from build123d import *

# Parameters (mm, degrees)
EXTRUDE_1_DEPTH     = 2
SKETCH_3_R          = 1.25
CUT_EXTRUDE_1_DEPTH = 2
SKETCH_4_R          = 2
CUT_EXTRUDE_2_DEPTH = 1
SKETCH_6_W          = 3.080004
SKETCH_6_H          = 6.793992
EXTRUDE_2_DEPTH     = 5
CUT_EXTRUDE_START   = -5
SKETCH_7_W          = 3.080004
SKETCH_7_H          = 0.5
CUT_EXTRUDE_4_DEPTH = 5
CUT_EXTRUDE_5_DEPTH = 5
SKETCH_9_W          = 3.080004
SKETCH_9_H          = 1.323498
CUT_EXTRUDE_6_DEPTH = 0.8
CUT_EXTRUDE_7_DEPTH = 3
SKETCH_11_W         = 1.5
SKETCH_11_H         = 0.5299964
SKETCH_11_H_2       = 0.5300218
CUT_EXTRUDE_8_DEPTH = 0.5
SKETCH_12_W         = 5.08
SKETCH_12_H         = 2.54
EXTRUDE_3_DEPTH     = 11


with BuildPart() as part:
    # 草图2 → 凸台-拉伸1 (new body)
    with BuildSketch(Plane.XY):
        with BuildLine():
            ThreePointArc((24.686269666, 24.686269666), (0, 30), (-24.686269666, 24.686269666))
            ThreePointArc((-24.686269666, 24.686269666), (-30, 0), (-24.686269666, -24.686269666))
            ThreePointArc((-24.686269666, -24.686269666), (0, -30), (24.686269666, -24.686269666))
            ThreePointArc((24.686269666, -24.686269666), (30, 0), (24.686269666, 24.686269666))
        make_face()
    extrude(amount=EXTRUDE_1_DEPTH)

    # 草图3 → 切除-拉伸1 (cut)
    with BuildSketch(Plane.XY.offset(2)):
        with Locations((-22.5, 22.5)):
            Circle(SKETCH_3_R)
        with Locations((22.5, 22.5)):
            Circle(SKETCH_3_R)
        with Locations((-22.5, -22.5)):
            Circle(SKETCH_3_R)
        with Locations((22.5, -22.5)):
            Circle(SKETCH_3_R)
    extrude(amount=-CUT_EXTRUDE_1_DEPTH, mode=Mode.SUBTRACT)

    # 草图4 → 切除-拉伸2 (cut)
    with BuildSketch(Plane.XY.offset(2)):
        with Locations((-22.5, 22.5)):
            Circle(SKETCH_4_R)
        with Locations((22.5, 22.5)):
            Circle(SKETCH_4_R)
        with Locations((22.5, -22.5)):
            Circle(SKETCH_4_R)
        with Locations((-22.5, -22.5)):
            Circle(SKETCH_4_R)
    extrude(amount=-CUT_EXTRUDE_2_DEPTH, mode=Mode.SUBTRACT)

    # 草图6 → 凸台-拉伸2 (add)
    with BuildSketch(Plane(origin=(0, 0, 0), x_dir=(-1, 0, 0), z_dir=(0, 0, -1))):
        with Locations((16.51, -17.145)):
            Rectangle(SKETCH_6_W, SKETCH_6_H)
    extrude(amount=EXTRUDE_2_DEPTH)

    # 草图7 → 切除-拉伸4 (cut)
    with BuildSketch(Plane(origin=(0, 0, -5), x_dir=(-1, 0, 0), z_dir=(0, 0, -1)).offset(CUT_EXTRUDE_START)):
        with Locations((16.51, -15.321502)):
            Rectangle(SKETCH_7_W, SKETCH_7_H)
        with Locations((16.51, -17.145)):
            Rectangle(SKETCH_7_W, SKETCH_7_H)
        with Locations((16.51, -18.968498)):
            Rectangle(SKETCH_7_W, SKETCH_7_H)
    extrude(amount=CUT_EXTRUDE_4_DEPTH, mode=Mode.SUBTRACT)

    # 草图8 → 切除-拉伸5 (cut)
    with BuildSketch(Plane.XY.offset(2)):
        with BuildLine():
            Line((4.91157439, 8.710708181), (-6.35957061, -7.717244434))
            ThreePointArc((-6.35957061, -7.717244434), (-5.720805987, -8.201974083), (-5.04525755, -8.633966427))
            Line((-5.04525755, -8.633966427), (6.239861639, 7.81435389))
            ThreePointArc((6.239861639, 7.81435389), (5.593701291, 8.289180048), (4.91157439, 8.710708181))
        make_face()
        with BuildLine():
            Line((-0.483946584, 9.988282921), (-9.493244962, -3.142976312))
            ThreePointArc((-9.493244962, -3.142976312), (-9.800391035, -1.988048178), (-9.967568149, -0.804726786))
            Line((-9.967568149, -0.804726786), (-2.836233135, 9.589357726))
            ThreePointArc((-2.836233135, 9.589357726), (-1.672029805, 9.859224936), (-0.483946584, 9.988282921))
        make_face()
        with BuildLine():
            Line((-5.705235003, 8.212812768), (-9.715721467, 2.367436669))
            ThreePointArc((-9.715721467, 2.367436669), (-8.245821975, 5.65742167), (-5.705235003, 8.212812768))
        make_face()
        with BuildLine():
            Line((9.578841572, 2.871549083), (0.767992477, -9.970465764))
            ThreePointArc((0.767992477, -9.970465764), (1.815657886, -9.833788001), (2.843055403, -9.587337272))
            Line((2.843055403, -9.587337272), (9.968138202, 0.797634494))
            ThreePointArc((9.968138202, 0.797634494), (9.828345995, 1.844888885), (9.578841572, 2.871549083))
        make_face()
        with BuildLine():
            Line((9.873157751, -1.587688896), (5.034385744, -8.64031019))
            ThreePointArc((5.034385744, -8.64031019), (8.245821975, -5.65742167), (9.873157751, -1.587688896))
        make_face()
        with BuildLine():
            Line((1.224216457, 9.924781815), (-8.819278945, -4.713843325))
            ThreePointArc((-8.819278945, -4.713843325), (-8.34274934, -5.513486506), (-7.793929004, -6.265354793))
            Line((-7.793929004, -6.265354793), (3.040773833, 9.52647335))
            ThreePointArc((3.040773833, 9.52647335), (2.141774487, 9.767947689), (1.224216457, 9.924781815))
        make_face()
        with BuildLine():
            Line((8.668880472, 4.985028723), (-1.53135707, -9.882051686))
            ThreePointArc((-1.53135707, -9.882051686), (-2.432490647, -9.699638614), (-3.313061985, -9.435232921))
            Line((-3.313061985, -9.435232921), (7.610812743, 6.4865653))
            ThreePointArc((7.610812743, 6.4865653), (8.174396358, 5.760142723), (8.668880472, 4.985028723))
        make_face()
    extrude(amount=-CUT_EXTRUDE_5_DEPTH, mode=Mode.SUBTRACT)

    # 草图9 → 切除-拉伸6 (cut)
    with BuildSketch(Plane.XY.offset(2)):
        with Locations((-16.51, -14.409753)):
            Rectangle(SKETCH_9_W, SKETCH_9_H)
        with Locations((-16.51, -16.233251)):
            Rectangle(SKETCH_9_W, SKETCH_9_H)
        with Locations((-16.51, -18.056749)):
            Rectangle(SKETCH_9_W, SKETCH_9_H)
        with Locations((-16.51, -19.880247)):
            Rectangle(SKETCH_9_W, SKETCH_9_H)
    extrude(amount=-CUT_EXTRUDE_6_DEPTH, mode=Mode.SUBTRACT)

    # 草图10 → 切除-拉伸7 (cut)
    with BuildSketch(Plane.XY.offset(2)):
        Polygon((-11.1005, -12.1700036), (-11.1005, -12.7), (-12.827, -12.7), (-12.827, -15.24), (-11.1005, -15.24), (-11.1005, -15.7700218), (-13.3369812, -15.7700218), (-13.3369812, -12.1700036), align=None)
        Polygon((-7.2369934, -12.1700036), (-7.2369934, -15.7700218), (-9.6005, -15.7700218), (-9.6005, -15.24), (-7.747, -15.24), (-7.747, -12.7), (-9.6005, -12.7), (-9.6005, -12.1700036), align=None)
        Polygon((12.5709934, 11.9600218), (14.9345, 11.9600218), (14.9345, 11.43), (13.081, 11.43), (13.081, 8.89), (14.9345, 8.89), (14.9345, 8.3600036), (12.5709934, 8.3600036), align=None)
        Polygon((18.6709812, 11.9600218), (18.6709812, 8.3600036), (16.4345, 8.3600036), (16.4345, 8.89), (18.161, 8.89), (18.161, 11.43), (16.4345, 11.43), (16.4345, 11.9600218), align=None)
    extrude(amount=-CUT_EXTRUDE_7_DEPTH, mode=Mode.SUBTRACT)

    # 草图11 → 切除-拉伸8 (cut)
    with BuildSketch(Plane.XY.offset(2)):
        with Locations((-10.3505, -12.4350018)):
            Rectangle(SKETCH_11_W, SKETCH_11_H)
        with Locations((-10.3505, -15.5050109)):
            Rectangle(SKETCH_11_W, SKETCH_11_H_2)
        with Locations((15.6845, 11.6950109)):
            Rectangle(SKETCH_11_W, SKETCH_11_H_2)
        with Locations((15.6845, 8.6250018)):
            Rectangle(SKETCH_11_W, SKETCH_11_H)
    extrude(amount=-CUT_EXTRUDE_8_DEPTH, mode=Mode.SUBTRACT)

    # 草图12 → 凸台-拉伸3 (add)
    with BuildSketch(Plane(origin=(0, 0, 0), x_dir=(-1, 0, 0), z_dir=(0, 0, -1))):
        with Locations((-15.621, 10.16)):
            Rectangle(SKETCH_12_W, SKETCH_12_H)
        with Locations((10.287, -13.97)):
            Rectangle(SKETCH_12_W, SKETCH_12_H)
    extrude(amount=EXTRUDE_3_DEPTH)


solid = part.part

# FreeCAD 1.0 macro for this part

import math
import FreeCAD as App
import Part
import Sketcher
from FreeCAD import Vector
Q = App.Units.Quantity


def add_polygon(sketch, points):
    """Adds a closed chain of lines whose ends are joined by coincident constraints."""
    first, n = sketch.GeometryCount, len(points)
    for a, b in zip(points, points[1:] + points[:1]):
        sketch.addGeometry(Part.LineSegment(App.Vector(*a, 0), App.Vector(*b, 0)), False)
    for i in range(n):
        sketch.addConstraint(Sketcher.Constraint("Coincident", first + i, 2, first + (i + 1) % n, 1))

doc = App.newDocument("Part")
body = doc.addObject("PartDesign::Body", "Body")

# Sketch on XY plane
sketch1 = body.newObject("Sketcher::SketchObject", "Sketch")
sketch1.AttachmentSupport = (doc.getObject("XY_Plane"), [""])
sketch1.MapMode = "FlatFace"
sketch1.addGeometry(Part.ArcOfCircle(Part.Circle(Vector(0, -30, 0), Vector(0, 0, 1), 60), math.radians(66), math.radians(114)), False)
sketch1.addGeometry(Part.ArcOfCircle(Part.Circle(Vector(30, 0, 0), Vector(0, 0, 1), 60), math.radians(156), math.radians(204)), False)
sketch1.addGeometry(Part.ArcOfCircle(Part.Circle(Vector(0, 30, 0), Vector(0, 0, 1), 60), math.radians(-114), math.radians(-66)), False)
sketch1.addGeometry(Part.ArcOfCircle(Part.Circle(Vector(-30, 0, 0), Vector(0, 0, 1), 60), math.radians(-24), math.radians(24)), False)
sketch1.addConstraint(Sketcher.Constraint("Coincident", 0, 2, 1, 1))
sketch1.addConstraint(Sketcher.Constraint("Coincident", 1, 2, 2, 1))
sketch1.addConstraint(Sketcher.Constraint("Coincident", 2, 2, 3, 1))
sketch1.addConstraint(Sketcher.Constraint("Coincident", 3, 2, 0, 1))
sketch1.addConstraint(Sketcher.Constraint("Equal", 0, 1))
sketch1.addConstraint(Sketcher.Constraint("Equal", 1, 2))
sketch1.addConstraint(Sketcher.Constraint("Equal", 2, 3))
sketch1.addConstraint(Sketcher.Constraint("Symmetric", 0, 3, 2, 3, -1, 1))
sketch1.addConstraint(Sketcher.Constraint("Symmetric", 1, 3, 3, 3, -1, 1))
sketch1.addConstraint(Sketcher.Constraint("Symmetric", 1, 2, 2, 2, -2))
sketch1.addConstraint(Sketcher.Constraint("Radius", 0, Q("60 mm")))
sketch1.addConstraint(Sketcher.Constraint("DistanceY", 0, 3, -1, 1, Q("30 mm")))
sketch1.addConstraint(Sketcher.Constraint("DistanceX", -1, 1, 1, 3, Q("30 mm")))
pad1 = body.newObject("PartDesign::Pad", "Pad")
pad1.Profile = sketch1
pad1.Length = 2

# Sketch on XY plane
sketch2 = body.newObject("Sketcher::SketchObject", "Sketch001")
sketch2.AttachmentSupport = (doc.getObject("XY_Plane"), [""])
sketch2.MapMode = "FlatFace"
sketch2.AttachmentOffset = App.Placement(Vector(0, 0, 2), App.Rotation())
sketch2.addGeometry(Part.Circle(Vector(-22.5, 22.5, 0), Vector(0, 0, 1), 1.2), False)
sketch2.addGeometry(Part.Circle(Vector(22.5, 22.5, 0), Vector(0, 0, 1), 1.2), False)
sketch2.addGeometry(Part.Circle(Vector(-22.5, -22.5, 0), Vector(0, 0, 1), 1.2), False)
sketch2.addGeometry(Part.Circle(Vector(22.5, -22.5, 0), Vector(0, 0, 1), 1.2), False)
sketch2.addConstraint(Sketcher.Constraint("Equal", 0, 1))
sketch2.addConstraint(Sketcher.Constraint("Equal", 1, 2))
sketch2.addConstraint(Sketcher.Constraint("Equal", 2, 3))
sketch2.addConstraint(Sketcher.Constraint("Symmetric", 1, 3, 2, 3, -1, 1))
sketch2.addConstraint(Sketcher.Constraint("Symmetric", 0, 3, 3, 3, -1, 1))
sketch2.addConstraint(Sketcher.Constraint("Symmetric", 0, 3, 1, 3, -2))
sketch2.addConstraint(Sketcher.Constraint("Diameter", 0, Q("2.5 mm")))
sketch2.addConstraint(Sketcher.Constraint("DistanceX", 0, 3, 1, 3, Q("45 mm")))
sketch2.addConstraint(Sketcher.Constraint("DistanceY", 2, 3, 0, 3, Q("45 mm")))
pocket1 = body.newObject("PartDesign::Pocket", "Pocket")
pocket1.Profile = sketch2
pocket1.Length = 2

# Sketch on XY plane
sketch3 = body.newObject("Sketcher::SketchObject", "Sketch002")
sketch3.AttachmentSupport = (doc.getObject("XY_Plane"), [""])
sketch3.MapMode = "FlatFace"
sketch3.AttachmentOffset = App.Placement(Vector(0, 0, 2), App.Rotation())
sketch3.addGeometry(Part.Circle(Vector(-22.5, 22.5, 0), Vector(0, 0, 1), 2), False)
sketch3.addGeometry(Part.Circle(Vector(22.5, 22.5, 0), Vector(0, 0, 1), 2), False)
sketch3.addGeometry(Part.Circle(Vector(22.5, -22.5, 0), Vector(0, 0, 1), 2), False)
sketch3.addGeometry(Part.Circle(Vector(-22.5, -22.5, 0), Vector(0, 0, 1), 2), False)
sketch3.addConstraint(Sketcher.Constraint("Equal", 0, 1))
sketch3.addConstraint(Sketcher.Constraint("Equal", 1, 2))
sketch3.addConstraint(Sketcher.Constraint("Equal", 2, 3))
sketch3.addConstraint(Sketcher.Constraint("Symmetric", 0, 3, 2, 3, -1, 1))
sketch3.addConstraint(Sketcher.Constraint("Symmetric", 1, 3, 3, 3, -1, 1))
sketch3.addConstraint(Sketcher.Constraint("Symmetric", 0, 3, 1, 3, -2))
sketch3.addConstraint(Sketcher.Constraint("Diameter", 0, Q("4 mm")))
sketch3.addConstraint(Sketcher.Constraint("DistanceX", 0, 3, 1, 3, Q("45 mm")))
sketch3.addConstraint(Sketcher.Constraint("DistanceY", 2, 3, 1, 3, Q("45 mm")))
pocket2 = body.newObject("PartDesign::Pocket", "Pocket001")
pocket2.Profile = sketch3
pocket2.Length = 1

# Sketch on XY plane
sketch4 = body.newObject("Sketcher::SketchObject", "Sketch003")
sketch4.AttachmentSupport = (doc.getObject("XY_Plane"), [""])
sketch4.MapMode = "FlatFace"
add_polygon(sketch4, [(-15, -13.7), (-15, -20.5), (-18.1, -20.5), (-18.1, -13.7)])  # lines 0-3
sketch4.addConstraint(Sketcher.Constraint("Vertical", 0))
sketch4.addConstraint(Sketcher.Constraint("Horizontal", 1))
sketch4.addConstraint(Sketcher.Constraint("Vertical", 2))
sketch4.addConstraint(Sketcher.Constraint("Horizontal", 3))
sketch4.addConstraint(Sketcher.Constraint("DistanceX", 1, 2, -1, 1, Q("18.050002 mm")))
sketch4.addConstraint(Sketcher.Constraint("DistanceX", 1, 2, 1, 1, Q("3.080004 mm")))
sketch4.addConstraint(Sketcher.Constraint("DistanceY", 0, 2, 0, 1, Q("6.793992 mm")))
sketch4.addConstraint(Sketcher.Constraint("DistanceY", 0, 2, -1, 1, Q("20.541996 mm")))
pad2 = body.newObject("PartDesign::Pad", "Pad001")
pad2.Profile = sketch4
pad2.Length = 5
pad2.Reversed = True

# Sketch on XY plane
sketch5 = body.newObject("Sketcher::SketchObject", "Sketch004")
sketch5.AttachmentSupport = (doc.getObject("XY_Plane"), [""])
sketch5.MapMode = "FlatFace"
add_polygon(sketch5, [(-15, -15.1), (-15, -15.6), (-18.1, -15.6), (-18.1, -15.1)])  # lines 0-3
add_polygon(sketch5, [(-15, -16.9), (-15, -17.4), (-18.1, -17.4), (-18.1, -16.9)])  # lines 4-7
add_polygon(sketch5, [(-15, -18.7), (-15, -19.2), (-18.1, -19.2), (-18.1, -18.7)])  # lines 8-11
sketch5.addConstraint(Sketcher.Constraint("Vertical", 0))
sketch5.addConstraint(Sketcher.Constraint("Horizontal", 1))
sketch5.addConstraint(Sketcher.Constraint("Vertical", 2))
sketch5.addConstraint(Sketcher.Constraint("Horizontal", 3))
sketch5.addConstraint(Sketcher.Constraint("Vertical", 4))
sketch5.addConstraint(Sketcher.Constraint("Horizontal", 5))
sketch5.addConstraint(Sketcher.Constraint("Vertical", 6))
sketch5.addConstraint(Sketcher.Constraint("Horizontal", 7))
sketch5.addConstraint(Sketcher.Constraint("Vertical", 8))
sketch5.addConstraint(Sketcher.Constraint("Horizontal", 9))
sketch5.addConstraint(Sketcher.Constraint("Vertical", 10))
sketch5.addConstraint(Sketcher.Constraint("Horizontal", 11))
sketch5.addConstraint(Sketcher.Constraint("Vertical", 3, 2, 4, 2))
sketch5.addConstraint(Sketcher.Constraint("Vertical", 2, 2, 5, 2))
sketch5.addConstraint(Sketcher.Constraint("Vertical", 7, 2, 8, 2))
sketch5.addConstraint(Sketcher.Constraint("Vertical", 6, 2, 9, 2))
sketch5.addConstraint(Sketcher.Constraint("Equal", 2, 4))
sketch5.addConstraint(Sketcher.Constraint("Equal", 6, 8))
sketch5.addConstraint(Sketcher.Constraint("DistanceY", 0, 2, 0, 1, Q("0.5 mm")))
sketch5.addConstraint(Sketcher.Constraint("DistanceX", 1, 2, -1, 1, Q("18.050002 mm")))
sketch5.addConstraint(Sketcher.Constraint("DistanceY", 4, 2, -1, 1, Q("17.395 mm")))
sketch5.addConstraint(Sketcher.Constraint("DistanceY", 8, 2, -1, 1, Q("19.218498 mm")))
sketch5.addConstraint(Sketcher.Constraint("DistanceX", 1, 2, 1, 1, Q("3.080004 mm")))
sketch5.addConstraint(Sketcher.Constraint("DistanceY", 0, 2, -1, 1, Q("15.571502 mm")))
pocket3 = body.newObject("PartDesign::Pocket", "Pocket002")
pocket3.Profile = sketch5
pocket3.Length = 5

# Sketch on XY plane
sketch6 = body.newObject("Sketcher::SketchObject", "Sketch005")
sketch6.AttachmentSupport = (doc.getObject("XY_Plane"), [""])
sketch6.MapMode = "FlatFace"
sketch6.AttachmentOffset = App.Placement(Vector(0, 0, 2), App.Rotation())
sketch6.addGeometry(Part.LineSegment(Vector(4.911574, 8.710708, 0), Vector(-6.359571, -7.717244, 0)), False)
sketch6.addGeometry(Part.ArcOfCircle(Part.Circle(Vector(0, 0, 0), Vector(0, 0, 1), 10), math.radians(-129.491004), math.radians(-120.299876)), False)
sketch6.addGeometry(Part.LineSegment(Vector(-5.045258, -8.633966, 0), Vector(6.239862, 7.814354, 0)), False)
sketch6.addGeometry(Part.ArcOfCircle(Part.Circle(Vector(0, 0, 0), Vector(0, 0, 1), 10), math.radians(51.392187), math.radians(60.583315)), False)
sketch6.addGeometry(Part.LineSegment(Vector(-9.493245, -3.142976, 0), Vector(-0.483947, 9.988283, 0)), False)
sketch6.addGeometry(Part.ArcOfCircle(Part.Circle(Vector(0, 0, 0), Vector(0, 0, 1), 10), math.radians(92.773893), math.radians(106.476575)), False)
sketch6.addGeometry(Part.LineSegment(Vector(-2.836233, 9.589358, 0), Vector(-9.967568, -0.804727, 0)), False)
sketch6.addGeometry(Part.ArcOfCircle(Part.Circle(Vector(0, 0, 0), Vector(0, 0, 1), 10), math.radians(-175.384264), math.radians(-161.681582)), False)
sketch6.addGeometry(Part.LineSegment(Vector(-9.715721, 2.367437, 0), Vector(-5.705235, 8.212813, 0)), False)
sketch6.addGeometry(Part.ArcOfCircle(Part.Circle(Vector(0, 0, 0), Vector(0, 0, 1), 10), math.radians(124.786739), math.radians(166.305572)), False)
sketch6.addGeometry(Part.LineSegment(Vector(9.578842, 2.871549, 0), Vector(0.767992, -9.970466, 0)), False)
sketch6.addGeometry(Part.ArcOfCircle(Part.Circle(Vector(0, 0, 0), Vector(0, 0, 1), 10), math.radians(-85.59539), math.radians(-73.482658)), False)
sketch6.addGeometry(Part.LineSegment(Vector(2.843055, -9.587337, 0), Vector(9.968138, 0.797634, 0)), False)
sketch6.addGeometry(Part.ArcOfCircle(Part.Circle(Vector(0, 0, 0), Vector(0, 0, 1), 10), math.radians(4.574969), math.radians(16.687701)), False)
sketch6.addGeometry(Part.LineSegment(Vector(9.873158, -1.587689, 0), Vector(5.034386, -8.64031, 0)), False)
sketch6.addGeometry(Part.ArcOfCircle(Part.Circle(Vector(0, 0, 0), Vector(0, 0, 1), 10), math.radians(-59.772244), math.radians(-9.135445)), False)
sketch6.addGeometry(Part.LineSegment(Vector(1.224216, 9.924782, 0), Vector(-8.819279, -4.713843, 0)), False)
sketch6.addGeometry(Part.ArcOfCircle(Part.Circle(Vector(0, 0, 0), Vector(0, 0, 1), 10), math.radians(-151.875806), math.radians(-141.205023)), False)
sketch6.addGeometry(Part.LineSegment(Vector(-7.793929, -6.265355, 0), Vector(3.040774, 9.526473, 0)), False)
sketch6.addGeometry(Part.ArcOfCircle(Part.Circle(Vector(0, 0, 0), Vector(0, 0, 1), 10), math.radians(72.297334), math.radians(82.968117)), False)
sketch6.addGeometry(Part.LineSegment(Vector(-1.531357, -9.882052, 0), Vector(8.66888, 4.985029, 0)), False)
sketch6.addGeometry(Part.ArcOfCircle(Part.Circle(Vector(0, 0, 0), Vector(0, 0, 1), 10), math.radians(29.901), math.radians(40.440386)), False)
sketch6.addGeometry(Part.LineSegment(Vector(7.610813, 6.486565, 0), Vector(-3.313062, -9.435233, 0)), False)
sketch6.addGeometry(Part.ArcOfCircle(Part.Circle(Vector(0, 0, 0), Vector(0, 0, 1), 10), math.radians(-109.348076), math.radians(-98.808689)), False)
sketch6.addConstraint(Sketcher.Constraint("Coincident", 0, 2, 1, 1))
sketch6.addConstraint(Sketcher.Constraint("Coincident", 1, 2, 2, 1))
sketch6.addConstraint(Sketcher.Constraint("Coincident", 2, 2, 3, 1))
sketch6.addConstraint(Sketcher.Constraint("Coincident", 3, 2, 0, 1))
sketch6.addConstraint(Sketcher.Constraint("Coincident", 4, 2, 5, 1))
sketch6.addConstraint(Sketcher.Constraint("Coincident", 5, 2, 6, 1))
sketch6.addConstraint(Sketcher.Constraint("Coincident", 6, 2, 7, 1))
sketch6.addConstraint(Sketcher.Constraint("Coincident", 7, 2, 4, 1))
sketch6.addConstraint(Sketcher.Constraint("Coincident", 8, 1, 9, 2))
sketch6.addConstraint(Sketcher.Constraint("Coincident", 9, 1, 8, 2))
sketch6.addConstraint(Sketcher.Constraint("Coincident", 10, 2, 11, 1))
sketch6.addConstraint(Sketcher.Constraint("Coincident", 11, 2, 12, 1))
sketch6.addConstraint(Sketcher.Constraint("Coincident", 12, 2, 13, 1))
sketch6.addConstraint(Sketcher.Constraint("Coincident", 13, 2, 10, 1))
sketch6.addConstraint(Sketcher.Constraint("Coincident", 14, 1, 15, 2))
sketch6.addConstraint(Sketcher.Constraint("Coincident", 15, 1, 14, 2))
sketch6.addConstraint(Sketcher.Constraint("Coincident", 16, 2, 17, 1))
sketch6.addConstraint(Sketcher.Constraint("Coincident", 17, 2, 18, 1))
sketch6.addConstraint(Sketcher.Constraint("Coincident", 18, 2, 19, 1))
sketch6.addConstraint(Sketcher.Constraint("Coincident", 19, 2, 16, 1))
sketch6.addConstraint(Sketcher.Constraint("Coincident", 20, 2, 21, 1))
sketch6.addConstraint(Sketcher.Constraint("Coincident", 21, 2, 22, 1))
sketch6.addConstraint(Sketcher.Constraint("Coincident", 22, 2, 23, 1))
sketch6.addConstraint(Sketcher.Constraint("Coincident", 23, 2, 20, 1))
sketch6.addConstraint(Sketcher.Constraint("Coincident", 1, 3, -1, 1))
sketch6.addConstraint(Sketcher.Constraint("Coincident", 3, 3, -1, 1))
sketch6.addConstraint(Sketcher.Constraint("Coincident", 5, 3, -1, 1))
sketch6.addConstraint(Sketcher.Constraint("Coincident", 7, 3, -1, 1))
sketch6.addConstraint(Sketcher.Constraint("Coincident", 9, 3, -1, 1))
sketch6.addConstraint(Sketcher.Constraint("Coincident", 11, 3, -1, 1))
sketch6.addConstraint(Sketcher.Constraint("Coincident", 13, 3, -1, 1))
sketch6.addConstraint(Sketcher.Constraint("Coincident", 15, 3, -1, 1))
sketch6.addConstraint(Sketcher.Constraint("Coincident", 17, 3, -1, 1))
sketch6.addConstraint(Sketcher.Constraint("Coincident", 19, 3, -1, 1))
sketch6.addConstraint(Sketcher.Constraint("Coincident", 21, 3, -1, 1))
sketch6.addConstraint(Sketcher.Constraint("Coincident", 23, 3, -1, 1))
sketch6.addConstraint(Sketcher.Constraint("Radius", 1, Q("10 mm")))
sketch6.addConstraint(Sketcher.Constraint("Radius", 3, Q("10 mm")))
sketch6.addConstraint(Sketcher.Constraint("Radius", 5, Q("10 mm")))
sketch6.addConstraint(Sketcher.Constraint("Radius", 7, Q("10 mm")))
sketch6.addConstraint(Sketcher.Constraint("Radius", 9, Q("10 mm")))
sketch6.addConstraint(Sketcher.Constraint("Radius", 11, Q("10 mm")))
sketch6.addConstraint(Sketcher.Constraint("Radius", 13, Q("10 mm")))
sketch6.addConstraint(Sketcher.Constraint("Radius", 15, Q("10 mm")))
sketch6.addConstraint(Sketcher.Constraint("Radius", 17, Q("10 mm")))
sketch6.addConstraint(Sketcher.Constraint("Radius", 19, Q("10 mm")))
sketch6.addConstraint(Sketcher.Constraint("Radius", 21, Q("10 mm")))
sketch6.addConstraint(Sketcher.Constraint("Radius", 23, Q("10 mm")))
sketch6.addConstraint(Sketcher.Constraint("DistanceX", 9, 1, 5, 2, Q("2.869002 mm")))
sketch6.addConstraint(Sketcher.Constraint("DistanceY", 10, 2, 1, 2, Q("1.336499 mm")))
sketch6.addConstraint(Sketcher.Constraint("DistanceY", 0, 2, 16, 2, Q("3.003401 mm")))
sketch6.addConstraint(Sketcher.Constraint("DistanceX", 18, 2, 3, 2, Q("1.870801 mm")))
sketch6.addConstraint(Sketcher.Constraint("DistanceY", 19, 2, 4, 2, Q("0.063501 mm")))
sketch6.addConstraint(Sketcher.Constraint("DistanceX", 1, 2, 23, 2, Q("3.5139 mm")))
sketch6.addConstraint(Sketcher.Constraint("Distance", 0, Q("19.922759 mm")))
sketch6.addConstraint(Sketcher.Constraint("Distance", 2, Q("19.94746 mm")))
sketch6.addConstraint(Sketcher.Constraint("Distance", 16, Q("17.752779 mm")))
sketch6.addConstraint(Sketcher.Constraint("Distance", 18, Q("19.151309 mm")))
sketch6.addConstraint(Sketcher.Constraint("DistanceX", 0, 2, -1, 1, Q("6.359571 mm")))
sketch6.addConstraint(Sketcher.Constraint("DistanceX", -1, 1, 2, 2, Q("6.239862 mm")))
sketch6.addConstraint(Sketcher.Constraint("DistanceX", 6, 2, -1, 1, Q("9.967568 mm")))
sketch6.addConstraint(Sketcher.Constraint("DistanceX", 8, 1, -1, 1, Q("9.715721 mm")))
sketch6.addConstraint(Sketcher.Constraint("DistanceX", -1, 1, 12, 2, Q("9.968138 mm")))
sketch6.addConstraint(Sketcher.Constraint("DistanceX", -1, 1, 13, 2, Q("9.578842 mm")))
sketch6.addConstraint(Sketcher.Constraint("DistanceY", 14, 1, -1, 1, Q("1.587689 mm")))
sketch6.addConstraint(Sketcher.Constraint("DistanceY", 15, 1, -1, 1, Q("8.64031 mm")))
sketch6.addConstraint(Sketcher.Constraint("DistanceX", -1, 1, 20, 2, Q("8.66888 mm")))
sketch6.addConstraint(Sketcher.Constraint("DistanceX", 22, 2, -1, 1, Q("3.313062 mm")))
sketch6.addConstraint(Sketcher.Constraint("DistanceY", 3, 2, 5, 2, Q("0.87865 mm")))
sketch6.addConstraint(Sketcher.Constraint("DistanceY", 7, 2, 6, 2, Q("2.33825 mm")))
sketch6.addConstraint(Sketcher.Constraint("DistanceY", 10, 2, 11, 2, Q("0.383128 mm")))
sketch6.addConstraint(Sketcher.Constraint("DistanceX", 2, 2, 21, 2, Q("1.370951 mm")))
pocket4 = body.newObject("PartDesign::Pocket", "Pocket003")
pocket4.Profile = sketch6
pocket4.Length = 5

# Sketch on XY plane
sketch7 = body.newObject("Sketcher::SketchObject", "Sketch006")
sketch7.AttachmentSupport = (doc.getObject("XY_Plane"), [""])
sketch7.MapMode = "FlatFace"
sketch7.AttachmentOffset = App.Placement(Vector(0, 0, 2), App.Rotation())
add_polygon(sketch7, [(-18.1, -13.7), (-18.1, -15.1), (-15, -15.1), (-15, -13.7)])  # lines 0-3
add_polygon(sketch7, [(-18.1, -15.6), (-18.1, -16.9), (-15, -16.9), (-15, -15.6)])  # lines 4-7
add_polygon(sketch7, [(-18.1, -17.4), (-18.1, -18.7), (-15, -18.7), (-15, -17.4)])  # lines 8-11
add_polygon(sketch7, [(-18.1, -19.2), (-18.1, -20.5), (-15, -20.5), (-15, -19.2)])  # lines 12-15
sketch7.addConstraint(Sketcher.Constraint("Vertical", 0))
sketch7.addConstraint(Sketcher.Constraint("Horizontal", 1))
sketch7.addConstraint(Sketcher.Constraint("Vertical", 2))
sketch7.addConstraint(Sketcher.Constraint("Horizontal", 3))
sketch7.addConstraint(Sketcher.Constraint("Vertical", 4))
sketch7.addConstraint(Sketcher.Constraint("Horizontal", 5))
sketch7.addConstraint(Sketcher.Constraint("Vertical", 6))
sketch7.addConstraint(Sketcher.Constraint("Horizontal", 7))
sketch7.addConstraint(Sketcher.Constraint("Vertical", 8))
sketch7.addConstraint(Sketcher.Constraint("Horizontal", 9))
sketch7.addConstraint(Sketcher.Constraint("Vertical", 10))
sketch7.addConstraint(Sketcher.Constraint("Horizontal", 11))
sketch7.addConstraint(Sketcher.Constraint("Vertical", 12))
sketch7.addConstraint(Sketcher.Constraint("Horizontal", 13))
sketch7.addConstraint(Sketcher.Constraint("Vertical", 14))
sketch7.addConstraint(Sketcher.Constraint("Horizontal", 15))
sketch7.addConstraint(Sketcher.Constraint("Vertical", 3, 2, 4, 2))
sketch7.addConstraint(Sketcher.Constraint("Vertical", 2, 2, 5, 2))
sketch7.addConstraint(Sketcher.Constraint("Vertical", 7, 2, 8, 2))
sketch7.addConstraint(Sketcher.Constraint("Vertical", 6, 2, 9, 2))
sketch7.addConstraint(Sketcher.Constraint("Vertical", 11, 2, 12, 2))
sketch7.addConstraint(Sketcher.Constraint("Vertical", 10, 2, 13, 2))
sketch7.addConstraint(Sketcher.Constraint("Equal", 2, 4))
sketch7.addConstraint(Sketcher.Constraint("Equal", 6, 8))
sketch7.addConstraint(Sketcher.Constraint("Equal", 10, 12))
sketch7.addConstraint(Sketcher.Constraint("DistanceY", 6, 2, 1, 2, Q("0.5 mm")))
sketch7.addConstraint(Sketcher.Constraint("DistanceY", 10, 2, 5, 2, Q("0.5 mm")))
sketch7.addConstraint(Sketcher.Constraint("DistanceY", 14, 2, 9, 2, Q("0.5 mm")))
sketch7.addConstraint(Sketcher.Constraint("DistanceX", 0, 2, -1, 1, Q("18.050002 mm")))
sketch7.addConstraint(Sketcher.Constraint("DistanceY", 0, 2, 0, 1, Q("1.323498 mm")))
sketch7.addConstraint(Sketcher.Constraint("DistanceY", 4, 2, -1, 1, Q("16.895 mm")))
sketch7.addConstraint(Sketcher.Constraint("DistanceX", 1, 1, 1, 2, Q("3.080004 mm")))
pocket5 = body.newObject("PartDesign::Pocket", "Pocket004")
pocket5.Profile = sketch7
pocket5.Length = 0.8

# Sketch on XY plane
sketch8 = body.newObject("Sketcher::SketchObject", "Sketch007")
sketch8.AttachmentSupport = (doc.getObject("XY_Plane"), [""])
sketch8.MapMode = "FlatFace"
sketch8.AttachmentOffset = App.Placement(Vector(0, 0, 2), App.Rotation())
add_polygon(sketch8, [(-11.1, -12.7), (-11.1, -12.2), (-13.3, -12.2), (-13.3, -15.8), (-11.1, -15.8), (-11.1, -15.2), (-12.8, -15.2), (-12.8, -12.7)])  # lines 0-7
add_polygon(sketch8, [(-7.2, -15.8), (-7.2, -12.2), (-9.6, -12.2), (-9.6, -12.7), (-7.7, -12.7), (-7.7, -15.2), (-9.6, -15.2), (-9.6, -15.8)])  # lines 8-15
add_polygon(sketch8, [(14.9, 12), (12.6, 12), (12.6, 8.4), (14.9, 8.4), (14.9, 8.9), (13.1, 8.9), (13.1, 11.4), (14.9, 11.4)])  # lines 16-23
add_polygon(sketch8, [(18.7, 8.4), (18.7, 12), (16.4, 12), (16.4, 11.4), (18.2, 11.4), (18.2, 8.9), (16.4, 8.9), (16.4, 8.4)])  # lines 24-31
sketch8.addConstraint(Sketcher.Constraint("Vertical", 0))
sketch8.addConstraint(Sketcher.Constraint("Horizontal", 1))
sketch8.addConstraint(Sketcher.Constraint("Vertical", 2))
sketch8.addConstraint(Sketcher.Constraint("Horizontal", 3))
sketch8.addConstraint(Sketcher.Constraint("Vertical", 4))
sketch8.addConstraint(Sketcher.Constraint("Horizontal", 5))
sketch8.addConstraint(Sketcher.Constraint("Vertical", 6))
sketch8.addConstraint(Sketcher.Constraint("Horizontal", 7))
sketch8.addConstraint(Sketcher.Constraint("Vertical", 8))
sketch8.addConstraint(Sketcher.Constraint("Horizontal", 9))
sketch8.addConstraint(Sketcher.Constraint("Vertical", 10))
sketch8.addConstraint(Sketcher.Constraint("Horizontal", 11))
sketch8.addConstraint(Sketcher.Constraint("Vertical", 12))
sketch8.addConstraint(Sketcher.Constraint("Horizontal", 13))
sketch8.addConstraint(Sketcher.Constraint("Vertical", 14))
sketch8.addConstraint(Sketcher.Constraint("Horizontal", 15))
sketch8.addConstraint(Sketcher.Constraint("Horizontal", 16))
sketch8.addConstraint(Sketcher.Constraint("Vertical", 17))
sketch8.addConstraint(Sketcher.Constraint("Horizontal", 18))
sketch8.addConstraint(Sketcher.Constraint("Vertical", 19))
sketch8.addConstraint(Sketcher.Constraint("Horizontal", 20))
sketch8.addConstraint(Sketcher.Constraint("Vertical", 21))
sketch8.addConstraint(Sketcher.Constraint("Horizontal", 22))
sketch8.addConstraint(Sketcher.Constraint("Vertical", 23))
sketch8.addConstraint(Sketcher.Constraint("Vertical", 24))
sketch8.addConstraint(Sketcher.Constraint("Horizontal", 25))
sketch8.addConstraint(Sketcher.Constraint("Vertical", 26))
sketch8.addConstraint(Sketcher.Constraint("Horizontal", 27))
sketch8.addConstraint(Sketcher.Constraint("Vertical", 28))
sketch8.addConstraint(Sketcher.Constraint("Horizontal", 29))
sketch8.addConstraint(Sketcher.Constraint("Vertical", 30))
sketch8.addConstraint(Sketcher.Constraint("Horizontal", 31))
sketch8.addConstraint(Sketcher.Constraint("Horizontal", 1, 2, 8, 2))
sketch8.addConstraint(Sketcher.Constraint("Horizontal", 7, 2, 10, 2))
sketch8.addConstraint(Sketcher.Constraint("Horizontal", 5, 2, 12, 2))
sketch8.addConstraint(Sketcher.Constraint("Horizontal", 3, 2, 14, 2))
sketch8.addConstraint(Sketcher.Constraint("Horizontal", 23, 2, 24, 2))
sketch8.addConstraint(Sketcher.Constraint("Horizontal", 22, 2, 26, 2))
sketch8.addConstraint(Sketcher.Constraint("Horizontal", 20, 2, 28, 2))
sketch8.addConstraint(Sketcher.Constraint("Horizontal", 18, 2, 30, 2))
sketch8.addConstraint(Sketcher.Constraint("Vertical", 0, 2, 3, 2))
sketch8.addConstraint(Sketcher.Constraint("Vertical", 10, 2, 13, 2))
sketch8.addConstraint(Sketcher.Constraint("Vertical", 19, 2, 22, 2))
sketch8.addConstraint(Sketcher.Constraint("Vertical", 26, 2, 29, 2))
sketch8.addConstraint(Sketcher.Constraint("Equal", 15, 16))
sketch8.addConstraint(Sketcher.Constraint("Equal", 13, 20))
sketch8.addConstraint(Sketcher.Constraint("Equal", 3, 25))
sketch8.addConstraint(Sketcher.Constraint("Equal", 7, 27))
sketch8.addConstraint(Sketcher.Constraint("Equal", 8, 17))
sketch8.addConstraint(Sketcher.Constraint("Equal", 10, 19))
sketch8.addConstraint(Sketcher.Constraint("Equal", 12, 21))
sketch8.addConstraint(Sketcher.Constraint("DistanceY", 6, 1, 6, 2, Q("2.54 mm")))
sketch8.addConstraint(Sketcher.Constraint("DistanceY", 6, 2, -1, 1, Q("12.7 mm")))
sketch8.addConstraint(Sketcher.Constraint("DistanceX", 0, 2, 9, 2, Q("1.5 mm")))
sketch8.addConstraint(Sketcher.Constraint("DistanceX", 23, 2, 25, 2, Q("1.5 mm")))
sketch8.addConstraint(Sketcher.Constraint("DistanceY", -1, 1, 19, 2, Q("8.89 mm")))
sketch8.addConstraint(Sketcher.Constraint("DistanceX", 5, 2, 5, 1, Q("1.7265 mm")))
sketch8.addConstraint(Sketcher.Constraint("DistanceX", 11, 1, 11, 2, Q("1.8535 mm")))
sketch8.addConstraint(Sketcher.Constraint("DistanceX", 5, 2, -1, 1, Q("12.827 mm")))
sketch8.addConstraint(Sketcher.Constraint("DistanceX", -1, 1, 20, 2, Q("13.081 mm")))
sketch8.addConstraint(Sketcher.Constraint("DistanceX", 1, 2, 1, 1, Q("2.236481 mm")))
sketch8.addConstraint(Sketcher.Constraint("DistanceY", 2, 2, 2, 1, Q("3.600018 mm")))
sketch8.addConstraint(Sketcher.Constraint("DistanceY", 4, 1, 4, 2, Q("0.530022 mm")))
sketch8.addConstraint(Sketcher.Constraint("DistanceX", 9, 2, 9, 1, Q("2.363507 mm")))
pocket6 = body.newObject("PartDesign::Pocket", "Pocket005")
pocket6.Profile = sketch8
pocket6.Length = 3

# Sketch on XY plane
sketch9 = body.newObject("Sketcher::SketchObject", "Sketch008")
sketch9.AttachmentSupport = (doc.getObject("XY_Plane"), [""])
sketch9.MapMode = "FlatFace"
sketch9.AttachmentOffset = App.Placement(Vector(0, 0, 2), App.Rotation())
add_polygon(sketch9, [(-11.1, -12.2), (-11.1, -12.7), (-9.6, -12.7), (-9.6, -12.2)])  # lines 0-3
add_polygon(sketch9, [(-11.1, -15.2), (-11.1, -15.8), (-9.6, -15.8), (-9.6, -15.2)])  # lines 4-7
add_polygon(sketch9, [(14.9, 12), (14.9, 11.4), (16.4, 11.4), (16.4, 12)])  # lines 8-11
add_polygon(sketch9, [(14.9, 8.9), (14.9, 8.4), (16.4, 8.4), (16.4, 8.9)])  # lines 12-15
sketch9.addConstraint(Sketcher.Constraint("Vertical", 0))
sketch9.addConstraint(Sketcher.Constraint("Horizontal", 1))
sketch9.addConstraint(Sketcher.Constraint("Vertical", 2))
sketch9.addConstraint(Sketcher.Constraint("Horizontal", 3))
sketch9.addConstraint(Sketcher.Constraint("Vertical", 4))
sketch9.addConstraint(Sketcher.Constraint("Horizontal", 5))
sketch9.addConstraint(Sketcher.Constraint("Vertical", 6))
sketch9.addConstraint(Sketcher.Constraint("Horizontal", 7))
sketch9.addConstraint(Sketcher.Constraint("Vertical", 8))
sketch9.addConstraint(Sketcher.Constraint("Horizontal", 9))
sketch9.addConstraint(Sketcher.Constraint("Vertical", 10))
sketch9.addConstraint(Sketcher.Constraint("Horizontal", 11))
sketch9.addConstraint(Sketcher.Constraint("Vertical", 12))
sketch9.addConstraint(Sketcher.Constraint("Horizontal", 13))
sketch9.addConstraint(Sketcher.Constraint("Vertical", 14))
sketch9.addConstraint(Sketcher.Constraint("Horizontal", 15))
sketch9.addConstraint(Sketcher.Constraint("Vertical", 3, 2, 4, 2))
sketch9.addConstraint(Sketcher.Constraint("Vertical", 2, 2, 5, 2))
sketch9.addConstraint(Sketcher.Constraint("Vertical", 11, 2, 12, 2))
sketch9.addConstraint(Sketcher.Constraint("Vertical", 10, 2, 13, 2))
sketch9.addConstraint(Sketcher.Constraint("Equal", 7, 9))
sketch9.addConstraint(Sketcher.Constraint("Equal", 6, 8))
sketch9.addConstraint(Sketcher.Constraint("Equal", 2, 12))
sketch9.addConstraint(Sketcher.Constraint("DistanceX", 1, 1, 1, 2, Q("1.5 mm")))
sketch9.addConstraint(Sketcher.Constraint("DistanceY", 0, 2, -1, 1, Q("12.7 mm")))
sketch9.addConstraint(Sketcher.Constraint("DistanceY", 6, 2, -1, 1, Q("15.24 mm")))
sketch9.addConstraint(Sketcher.Constraint("DistanceY", -1, 1, 8, 2, Q("11.43 mm")))
sketch9.addConstraint(Sketcher.Constraint("DistanceY", -1, 1, 14, 2, Q("8.89 mm")))
sketch9.addConstraint(Sketcher.Constraint("DistanceX", 2, 2, 8, 2, Q("24.535 mm")))
sketch9.addConstraint(Sketcher.Constraint("DistanceY", 4, 2, 4, 1, Q("0.530022 mm")))
sketch9.addConstraint(Sketcher.Constraint("DistanceX", 0, 2, -1, 1, Q("11.1005 mm")))
sketch9.addConstraint(Sketcher.Constraint("DistanceY", 0, 2, 0, 1, Q("0.529996 mm")))
pocket7 = body.newObject("PartDesign::Pocket", "Pocket006")
pocket7.Profile = sketch9
pocket7.Length = 0.5

# Sketch on XY plane
sketch10 = body.newObject("Sketcher::SketchObject", "Sketch009")
sketch10.AttachmentSupport = (doc.getObject("XY_Plane"), [""])
sketch10.MapMode = "FlatFace"
add_polygon(sketch10, [(18.2, 11.4), (18.2, 8.9), (13.1, 8.9), (13.1, 11.4)])  # lines 0-3
add_polygon(sketch10, [(-7.7, -12.7), (-7.7, -15.2), (-12.8, -15.2), (-12.8, -12.7)])  # lines 4-7
sketch10.addConstraint(Sketcher.Constraint("Vertical", 0))
sketch10.addConstraint(Sketcher.Constraint("Horizontal", 1))
sketch10.addConstraint(Sketcher.Constraint("Vertical", 2))
sketch10.addConstraint(Sketcher.Constraint("Horizontal", 3))
sketch10.addConstraint(Sketcher.Constraint("Vertical", 4))
sketch10.addConstraint(Sketcher.Constraint("Horizontal", 5))
sketch10.addConstraint(Sketcher.Constraint("Vertical", 6))
sketch10.addConstraint(Sketcher.Constraint("Horizontal", 7))
sketch10.addConstraint(Sketcher.Constraint("Equal", 3, 5))
sketch10.addConstraint(Sketcher.Constraint("Equal", 2, 4))
sketch10.addConstraint(Sketcher.Constraint("DistanceX", 1, 2, 1, 1, Q("5.08 mm")))
sketch10.addConstraint(Sketcher.Constraint("DistanceY", 0, 2, 0, 1, Q("2.54 mm")))
sketch10.addConstraint(Sketcher.Constraint("DistanceY", 6, 2, -1, 1, Q("12.7 mm")))
sketch10.addConstraint(Sketcher.Constraint("DistanceY", -1, 1, 0, 2, Q("8.89 mm")))
sketch10.addConstraint(Sketcher.Constraint("DistanceX", -1, 1, 0, 2, Q("18.161 mm")))
sketch10.addConstraint(Sketcher.Constraint("DistanceX", 4, 2, -1, 1, Q("7.747 mm")))
pad3 = body.newObject("PartDesign::Pad", "Pad002")
pad3.Profile = sketch10
pad3.Length = 11
pad3.Reversed = True

doc.recompute()
